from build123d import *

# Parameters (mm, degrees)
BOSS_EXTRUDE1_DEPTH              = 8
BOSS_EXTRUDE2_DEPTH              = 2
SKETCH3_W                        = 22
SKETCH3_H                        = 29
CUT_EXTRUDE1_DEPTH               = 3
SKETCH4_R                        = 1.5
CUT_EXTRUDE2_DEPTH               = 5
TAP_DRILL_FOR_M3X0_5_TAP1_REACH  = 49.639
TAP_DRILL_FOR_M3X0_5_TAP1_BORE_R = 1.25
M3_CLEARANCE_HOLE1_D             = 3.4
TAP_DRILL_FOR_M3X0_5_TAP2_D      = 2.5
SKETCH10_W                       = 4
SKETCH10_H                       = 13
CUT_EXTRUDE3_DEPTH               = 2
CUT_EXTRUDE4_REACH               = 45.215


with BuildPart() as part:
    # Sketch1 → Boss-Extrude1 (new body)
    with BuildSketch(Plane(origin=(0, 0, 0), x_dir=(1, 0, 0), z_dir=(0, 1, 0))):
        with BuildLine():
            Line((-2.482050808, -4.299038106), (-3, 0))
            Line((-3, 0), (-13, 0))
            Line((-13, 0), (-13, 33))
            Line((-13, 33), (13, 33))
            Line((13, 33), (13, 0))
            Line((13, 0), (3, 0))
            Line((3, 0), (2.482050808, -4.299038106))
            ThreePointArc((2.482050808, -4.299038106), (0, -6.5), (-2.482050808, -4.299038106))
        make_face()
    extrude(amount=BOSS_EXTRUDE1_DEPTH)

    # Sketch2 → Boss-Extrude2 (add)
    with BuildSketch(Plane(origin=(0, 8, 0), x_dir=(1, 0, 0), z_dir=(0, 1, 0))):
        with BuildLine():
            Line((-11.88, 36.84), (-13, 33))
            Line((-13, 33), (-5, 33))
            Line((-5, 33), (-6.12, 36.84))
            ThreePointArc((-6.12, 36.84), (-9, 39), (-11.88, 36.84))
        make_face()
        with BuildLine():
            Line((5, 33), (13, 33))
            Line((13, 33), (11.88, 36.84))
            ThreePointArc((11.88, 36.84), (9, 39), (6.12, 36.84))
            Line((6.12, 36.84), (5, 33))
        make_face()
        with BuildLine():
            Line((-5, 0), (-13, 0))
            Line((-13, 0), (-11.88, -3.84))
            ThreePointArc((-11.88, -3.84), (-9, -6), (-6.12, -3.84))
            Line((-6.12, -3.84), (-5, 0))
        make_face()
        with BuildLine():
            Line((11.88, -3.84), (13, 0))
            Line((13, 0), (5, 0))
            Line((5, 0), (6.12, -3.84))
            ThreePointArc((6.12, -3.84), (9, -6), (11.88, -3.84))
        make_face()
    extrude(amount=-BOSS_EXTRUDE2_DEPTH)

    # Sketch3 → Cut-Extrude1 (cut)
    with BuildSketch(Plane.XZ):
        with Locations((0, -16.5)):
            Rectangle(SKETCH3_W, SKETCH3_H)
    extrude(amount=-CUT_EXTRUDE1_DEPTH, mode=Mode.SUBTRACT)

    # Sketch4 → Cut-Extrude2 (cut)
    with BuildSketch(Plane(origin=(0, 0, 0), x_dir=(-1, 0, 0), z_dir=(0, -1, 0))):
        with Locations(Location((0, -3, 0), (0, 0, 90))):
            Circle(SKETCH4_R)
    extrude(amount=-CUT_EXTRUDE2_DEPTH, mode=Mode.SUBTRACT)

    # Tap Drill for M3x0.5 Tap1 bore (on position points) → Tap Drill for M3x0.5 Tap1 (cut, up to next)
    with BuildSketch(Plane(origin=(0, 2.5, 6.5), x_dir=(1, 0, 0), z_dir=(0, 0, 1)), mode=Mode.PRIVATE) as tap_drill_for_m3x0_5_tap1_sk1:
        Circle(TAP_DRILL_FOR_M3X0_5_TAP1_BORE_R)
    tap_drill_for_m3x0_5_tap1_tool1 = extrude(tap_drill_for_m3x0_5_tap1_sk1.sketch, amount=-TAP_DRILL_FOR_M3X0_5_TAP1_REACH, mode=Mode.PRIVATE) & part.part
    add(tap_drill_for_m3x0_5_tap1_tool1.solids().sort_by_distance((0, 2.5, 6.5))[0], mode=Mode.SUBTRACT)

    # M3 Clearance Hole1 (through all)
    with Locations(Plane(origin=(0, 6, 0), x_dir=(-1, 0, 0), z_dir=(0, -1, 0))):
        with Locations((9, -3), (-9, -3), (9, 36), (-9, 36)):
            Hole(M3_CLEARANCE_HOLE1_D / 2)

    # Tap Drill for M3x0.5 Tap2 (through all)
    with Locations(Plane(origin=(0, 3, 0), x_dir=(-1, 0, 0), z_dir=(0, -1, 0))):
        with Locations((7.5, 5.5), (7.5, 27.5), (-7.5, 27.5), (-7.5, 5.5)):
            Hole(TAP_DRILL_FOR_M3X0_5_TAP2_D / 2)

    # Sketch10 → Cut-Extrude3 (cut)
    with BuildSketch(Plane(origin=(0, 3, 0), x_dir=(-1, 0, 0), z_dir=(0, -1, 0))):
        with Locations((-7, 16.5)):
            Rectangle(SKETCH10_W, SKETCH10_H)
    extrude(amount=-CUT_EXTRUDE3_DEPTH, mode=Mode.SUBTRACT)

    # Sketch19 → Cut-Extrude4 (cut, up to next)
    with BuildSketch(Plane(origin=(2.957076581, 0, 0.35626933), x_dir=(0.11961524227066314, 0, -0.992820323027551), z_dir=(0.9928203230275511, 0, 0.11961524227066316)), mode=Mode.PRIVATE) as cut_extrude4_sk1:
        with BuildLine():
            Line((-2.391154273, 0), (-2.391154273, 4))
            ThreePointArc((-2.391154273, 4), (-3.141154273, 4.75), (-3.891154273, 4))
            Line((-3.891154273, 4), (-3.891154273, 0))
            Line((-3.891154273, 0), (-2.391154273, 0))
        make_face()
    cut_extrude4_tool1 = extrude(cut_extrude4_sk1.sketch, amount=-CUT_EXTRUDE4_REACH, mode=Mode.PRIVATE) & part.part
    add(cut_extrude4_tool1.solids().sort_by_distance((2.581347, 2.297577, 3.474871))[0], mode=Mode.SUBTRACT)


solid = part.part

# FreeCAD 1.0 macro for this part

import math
import FreeCAD as App
import Part
import Sketcher
Q = App.Units.Quantity

doc = App.newDocument("Part")
body = doc.addObject("PartDesign::Body", "Body")

# Sketch on XZ plane
sketch1 = body.newObject("Sketcher::SketchObject", "Sketch")
sketch1.AttachmentSupport = (doc.getObject("XZ_Plane"), [""])
sketch1.MapMode = "FlatFace"
sketch1.addGeometry([
    Part.LineSegment(App.Vector(-3, 0, 0), App.Vector(-2.5, 4.3, 0)),  # 0
    Part.ArcOfCircle(Part.Circle(App.Vector(0, 4, 0), App.Vector(0, 0, 1), 2.5), math.radians(7), math.radians(173)),  # 1
    Part.LineSegment(App.Vector(2.5, 4.3, 0), App.Vector(3, 0, 0)),  # 2
    Part.LineSegment(App.Vector(3, 0, 0), App.Vector(13, 0, 0)),  # 3
    Part.LineSegment(App.Vector(13, 0, 0), App.Vector(13, -33, 0)),  # 4
    Part.LineSegment(App.Vector(13, -33, 0), App.Vector(-13, -33, 0)),  # 5
    Part.LineSegment(App.Vector(-13, -33, 0), App.Vector(-13, 0, 0)),  # 6
    Part.LineSegment(App.Vector(-13, 0, 0), App.Vector(-3, 0, 0)),  # 7
], False)
sketch1.addConstraint([
    Sketcher.Constraint("Tangent", 0, 2, 1, 2),
    Sketcher.Constraint("Tangent", 1, 1, 2, 1),
    Sketcher.Constraint("Coincident", 2, 2, 3, 1),
    Sketcher.Constraint("Coincident", 3, 2, 4, 1),
    Sketcher.Constraint("Coincident", 4, 2, 5, 1),
    Sketcher.Constraint("Coincident", 5, 2, 6, 1),
    Sketcher.Constraint("Coincident", 6, 2, 7, 1),
    Sketcher.Constraint("Coincident", 7, 2, 0, 1),
    Sketcher.Constraint("Horizontal", 3),
    Sketcher.Constraint("Vertical", 4),
    Sketcher.Constraint("Horizontal", 5),
    Sketcher.Constraint("Vertical", 6),
    Sketcher.Constraint("Horizontal", 7),
    Sketcher.Constraint("Symmetric", 3, 2, 6, 2, -1, 1),
    Sketcher.Constraint("Symmetric", 0, 2, 1, 1, -2),
    Sketcher.Constraint("PointOnObject", 2, 2, -1),
    Sketcher.Constraint("Radius", 1, Q("2.5 mm")),
    Sketcher.Constraint("DistanceX", 3, 1, 3, 2, Q("10 mm")),
    Sketcher.Constraint("DistanceX", 5, 2, 5, 1, Q("26 mm")),
    Sketcher.Constraint("DistanceY", 4, 2, 4, 1, Q("33 mm")),
    Sketcher.Constraint("DistanceY", -1, 1, 1, 3, Q("4 mm")),
])
pad1 = body.newObject("PartDesign::Pad", "Pad")
pad1.Profile = sketch1
pad1.Length = 8
pad1.Reversed = True

# Sketch on XZ plane
sketch2 = body.newObject("Sketcher::SketchObject", "Sketch001")
sketch2.AttachmentSupport = (doc.getObject("XZ_Plane"), [""])
sketch2.MapMode = "FlatFace"
sketch2.AttachmentOffset = App.Placement(App.Vector(0, 0, -8), App.Rotation())
sketch2.addGeometry([
    Part.LineSegment(App.Vector(-11.9, -36.8, 0), App.Vector(-13, -33, 0)),  # 0
    Part.LineSegment(App.Vector(-13, -33, 0), App.Vector(-5, -33, 0)),  # 1
    Part.LineSegment(App.Vector(-5, -33, 0), App.Vector(-6.1, -36.8, 0)),  # 2
    Part.ArcOfCircle(Part.Circle(App.Vector(-9, -36, 0), App.Vector(0, 0, 1), 3), math.radians(-164), math.radians(-16)),  # 3
    Part.LineSegment(App.Vector(5, -33, 0), App.Vector(13, -33, 0)),  # 4
    Part.LineSegment(App.Vector(13, -33, 0), App.Vector(11.9, -36.8, 0)),  # 5
    Part.ArcOfCircle(Part.Circle(App.Vector(9, -36, 0), App.Vector(0, 0, 1), 3), math.radians(-164), math.radians(-16)),  # 6
    Part.LineSegment(App.Vector(6.1, -36.8, 0), App.Vector(5, -33, 0)),  # 7
    Part.LineSegment(App.Vector(-5, 0, 0), App.Vector(-13, 0, 0)),  # 8
    Part.LineSegment(App.Vector(-13, 0, 0), App.Vector(-11.9, 3.8, 0)),  # 9
    Part.ArcOfCircle(Part.Circle(App.Vector(-9, 3, 0), App.Vector(0, 0, 1), 3), math.radians(16), math.radians(164)),  # 10
    Part.LineSegment(App.Vector(-6.1, 3.8, 0), App.Vector(-5, 0, 0)),  # 11
    Part.LineSegment(App.Vector(11.9, 3.8, 0), App.Vector(13, 0, 0)),  # 12
    Part.LineSegment(App.Vector(13, 0, 0), App.Vector(5, 0, 0)),  # 13
    Part.LineSegment(App.Vector(5, 0, 0), App.Vector(6.1, 3.8, 0)),  # 14
    Part.ArcOfCircle(Part.Circle(App.Vector(9, 3, 0), App.Vector(0, 0, 1), 3), math.radians(16), math.radians(164)),  # 15
], False)
sketch2.addConstraint([
    Sketcher.Constraint("Coincident", 0, 2, 1, 1),
    Sketcher.Constraint("Coincident", 1, 2, 2, 1),
    Sketcher.Constraint("Tangent", 2, 2, 3, 2),
    Sketcher.Constraint("Tangent", 3, 1, 0, 1),
    Sketcher.Constraint("Coincident", 4, 2, 5, 1),
    Sketcher.Constraint("Tangent", 5, 2, 6, 2),
    Sketcher.Constraint("Tangent", 6, 1, 7, 1),
    Sketcher.Constraint("Coincident", 7, 2, 4, 1),
    Sketcher.Constraint("Coincident", 8, 2, 9, 1),
    Sketcher.Constraint("Tangent", 9, 2, 10, 2),
    Sketcher.Constraint("Tangent", 10, 1, 11, 1),
    Sketcher.Constraint("Coincident", 11, 2, 8, 1),
    Sketcher.Constraint("Coincident", 12, 2, 13, 1),
    Sketcher.Constraint("Coincident", 13, 2, 14, 1),
    Sketcher.Constraint("Tangent", 14, 2, 15, 2),
    Sketcher.Constraint("Tangent", 15, 1, 12, 1),
    Sketcher.Constraint("Horizontal", 1),
    Sketcher.Constraint("Horizontal", 4),
    Sketcher.Constraint("Horizontal", 8),
    Sketcher.Constraint("Horizontal", 13),
    Sketcher.Constraint("Equal", 3, 6),
    Sketcher.Constraint("Equal", 6, 10),
    Sketcher.Constraint("Equal", 10, 15),
    Sketcher.Constraint("Symmetric", 8, 2, 12, 2, -1, 1),
    Sketcher.Constraint("Symmetric", 3, 3, 6, 3, -2),
    Sketcher.Constraint("Symmetric", 10, 3, 15, 3, -2),
    Sketcher.Constraint("Symmetric", 0, 2, 4, 2, -2),
    Sketcher.Constraint("Symmetric", 11, 2, 13, 2, -2),
    Sketcher.Constraint("Parallel", 2, 5),
    Sketcher.Constraint("Parallel", 0, 7),
    Sketcher.Constraint("Parallel", 5, 9),
    Sketcher.Constraint("Parallel", 7, 11),
    Sketcher.Constraint("Vertical", 3, 3, 10, 3),
    Sketcher.Constraint("Vertical", 0, 2, 8, 2),
    Sketcher.Constraint("Radius", 3, Q("3 mm")),
    Sketcher.Constraint("DistanceX", 1, 1, 1, 2, Q("8 mm")),
    Sketcher.Constraint("Distance", 0, Q("4 mm")),
    Sketcher.Constraint("DistanceX", 3, 3, -1, 1, Q("9 mm")),
    Sketcher.Constraint("DistanceY", 3, 3, -1, 1, Q("36 mm")),
])
pad2 = body.newObject("PartDesign::Pad", "Pad001")
pad2.Profile = sketch2
pad2.Length = 2

# Sketch on XZ plane
sketch3 = body.newObject("Sketcher::SketchObject", "Sketch002")
sketch3.AttachmentSupport = (doc.getObject("XZ_Plane"), [""])
sketch3.MapMode = "FlatFace"
sketch3.addGeometry([
    Part.LineSegment(App.Vector(-11, -2, 0), App.Vector(-11, -31, 0)),
    Part.LineSegment(App.Vector(-11, -31, 0), App.Vector(11, -31, 0)),
    Part.LineSegment(App.Vector(11, -31, 0), App.Vector(11, -2, 0)),
    Part.LineSegment(App.Vector(11, -2, 0), App.Vector(-11, -2, 0)),
], False)
sketch3.addConstraint([
    Sketcher.Constraint("Coincident", 0, 2, 1, 1),
    Sketcher.Constraint("Coincident", 1, 2, 2, 1),
    Sketcher.Constraint("Coincident", 2, 2, 3, 1),
    Sketcher.Constraint("Coincident", 3, 2, 0, 1),
    Sketcher.Constraint("Vertical", 0),
    Sketcher.Constraint("Horizontal", 1),
    Sketcher.Constraint("Vertical", 2),
    Sketcher.Constraint("Horizontal", 3),
    Sketcher.Constraint("DistanceX", 1, 1, 1, 2, Q("22 mm")),
    Sketcher.Constraint("DistanceY", 0, 2, 0, 1, Q("29 mm")),
    Sketcher.Constraint("DistanceX", 0, 2, -1, 1, Q("11 mm")),
    Sketcher.Constraint("DistanceY", 0, 2, -1, 1, Q("31 mm")),
])
pocket1 = body.newObject("PartDesign::Pocket", "Pocket")
pocket1.Profile = sketch3
pocket1.Length = 3

# Sketch on XZ plane
sketch4 = body.newObject("Sketcher::SketchObject", "Sketch003")
sketch4.AttachmentSupport = (doc.getObject("XZ_Plane"), [""])
sketch4.MapMode = "FlatFace"
sketch4.addGeometry(Part.Circle(App.Vector(0, 3, 0), App.Vector(0, 0, 1), 1.5), False)
sketch4.addConstraint([
    Sketcher.Constraint("PointOnObject", 0, 3, -2),
    Sketcher.Constraint("Diameter", 0, Q("3 mm")),
    Sketcher.Constraint("DistanceY", -1, 1, 0, 3, Q("3 mm")),
])
pocket2 = body.newObject("PartDesign::Pocket", "Pocket001")
pocket2.Profile = sketch4
pocket2.Length = 5

# Sketch on XY plane
sketch5 = body.newObject("Sketcher::SketchObject", "Sketch004")
sketch5.AttachmentSupport = (doc.getObject("XY_Plane"), [""])
sketch5.MapMode = "FlatFace"
sketch5.AttachmentOffset = App.Placement(App.Vector(0, 0, 6.5), App.Rotation())
sketch5.addGeometry(Part.Circle(App.Vector(0, 2.5, 0), App.Vector(0, 0, 1), 1.2), False)
sketch5.addConstraint([
    Sketcher.Constraint("PointOnObject", 0, 3, -2),
    Sketcher.Constraint("Diameter", 0, Q("2.5 mm")),
    Sketcher.Constraint("DistanceY", -1, 1, 0, 3, Q("2.5 mm")),
])
pocket3 = body.newObject("PartDesign::Pocket", "Pocket002")
pocket3.Profile = sketch5
pocket3.Type = "UpToFirst"

# Sketch on XZ plane
sketch6 = body.newObject("Sketcher::SketchObject", "Sketch005")
sketch6.AttachmentSupport = (doc.getObject("XZ_Plane"), [""])
sketch6.MapMode = "FlatFace"
sketch6.AttachmentOffset = App.Placement(App.Vector(0, 0, -6), App.Rotation())
sketch6.addGeometry([
    Part.Circle(App.Vector(-9, 3, 0), App.Vector(0, 0, 1), 1.7),
    Part.Circle(App.Vector(9, 3, 0), App.Vector(0, 0, 1), 1.7),
    Part.Circle(App.Vector(-9, -36, 0), App.Vector(0, 0, 1), 1.7),
    Part.Circle(App.Vector(9, -36, 0), App.Vector(0, 0, 1), 1.7),
], False)
sketch6.addConstraint([
    Sketcher.Constraint("Equal", 0, 1),
    Sketcher.Constraint("Equal", 1, 2),
    Sketcher.Constraint("Equal", 2, 3),
    Sketcher.Constraint("Symmetric", 0, 3, 1, 3, -2),
    Sketcher.Constraint("Symmetric", 2, 3, 3, 3, -2),
    Sketcher.Constraint("Vertical", 0, 3, 2, 3),
    Sketcher.Constraint("Diameter", 0, Q("3.4 mm")),
    Sketcher.Constraint("DistanceX", 0, 3, -1, 1, Q("9 mm")),
    Sketcher.Constraint("DistanceY", -1, 1, 0, 3, Q("3 mm")),
    Sketcher.Constraint("DistanceY", 2, 3, -1, 1, Q("36 mm")),
])
doc.recompute()
hole = body.newObject("PartDesign::Hole", "Hole")
hole.Profile = sketch6
hole.ThreadType = "None"
hole.Diameter = 3.4
hole.DepthType = "ThroughAll"

# Sketch on XZ plane
sketch7 = body.newObject("Sketcher::SketchObject", "Sketch006")
sketch7.AttachmentSupport = (doc.getObject("XZ_Plane"), [""])
sketch7.MapMode = "FlatFace"
sketch7.AttachmentOffset = App.Placement(App.Vector(0, 0, -3), App.Rotation())
sketch7.addGeometry([
    Part.Circle(App.Vector(-7.5, -5.5, 0), App.Vector(0, 0, 1), 1.2),
    Part.Circle(App.Vector(-7.5, -27.5, 0), App.Vector(0, 0, 1), 1.2),
    Part.Circle(App.Vector(7.5, -27.5, 0), App.Vector(0, 0, 1), 1.2),
    Part.Circle(App.Vector(7.5, -5.5, 0), App.Vector(0, 0, 1), 1.2),
], False)
sketch7.addConstraint([
    Sketcher.Constraint("Equal", 0, 1),
    Sketcher.Constraint("Equal", 1, 2),
    Sketcher.Constraint("Equal", 2, 3),
    Sketcher.Constraint("Symmetric", 1, 3, 2, 3, -2),
    Sketcher.Constraint("Symmetric", 0, 3, 3, 3, -2),
    Sketcher.Constraint("Vertical", 0, 3, 1, 3),
    Sketcher.Constraint("Diameter", 0, Q("2.5 mm")),
    Sketcher.Constraint("DistanceY", 1, 3, 0, 3, Q("22 mm")),
    Sketcher.Constraint("DistanceX", 1, 3, 2, 3, Q("15 mm")),
    Sketcher.Constraint("DistanceY", 0, 3, -1, 1, Q("5.5 mm")),
])
doc.recompute()
hole2 = body.newObject("PartDesign::Hole", "Hole001")
hole2.Profile = sketch7
hole2.ThreadType = "None"
hole2.Diameter = 2.5
hole2.DepthType = "ThroughAll"

# Sketch on XZ plane
sketch8 = body.newObject("Sketcher::SketchObject", "Sketch007")
sketch8.AttachmentSupport = (doc.getObject("XZ_Plane"), [""])
sketch8.MapMode = "FlatFace"
sketch8.AttachmentOffset = App.Placement(App.Vector(0, 0, -3), App.Rotation())
sketch8.addGeometry([
    Part.LineSegment(App.Vector(9, -23, 0), App.Vector(9, -10, 0)),
    Part.LineSegment(App.Vector(9, -10, 0), App.Vector(5, -10, 0)),
    Part.LineSegment(App.Vector(5, -10, 0), App.Vector(5, -23, 0)),
    Part.LineSegment(App.Vector(5, -23, 0), App.Vector(9, -23, 0)),
], False)
sketch8.addConstraint([
    Sketcher.Constraint("Coincident", 0, 2, 1, 1),
    Sketcher.Constraint("Coincident", 1, 2, 2, 1),
    Sketcher.Constraint("Coincident", 2, 2, 3, 1),
    Sketcher.Constraint("Coincident", 3, 2, 0, 1),
    Sketcher.Constraint("Vertical", 0),
    Sketcher.Constraint("Horizontal", 1),
    Sketcher.Constraint("Vertical", 2),
    Sketcher.Constraint("Horizontal", 3),
    Sketcher.Constraint("DistanceX", 1, 2, 1, 1, Q("4 mm")),
    Sketcher.Constraint("DistanceY", 0, 1, 0, 2, Q("13 mm")),
    Sketcher.Constraint("DistanceX", -1, 1, 0, 2, Q("9 mm")),
    Sketcher.Constraint("DistanceY", 0, 2, -1, 1, Q("10 mm")),
])
pocket4 = body.newObject("PartDesign::Pocket", "Pocket003")
pocket4.Profile = sketch8
pocket4.Length = 2

# Sketch on an angled plane
sketch9 = body.newObject("Sketcher::SketchObject", "Sketch008")
sketch9.Placement = App.Placement(App.Vector(2.957077, 0, 0.356269), App.Rotation(App.Vector(0.119615242, 0, -0.992820323), App.Vector(0, 1, 0), App.Vector(0.992820323, 0, 0.119615242), "ZXY"))
sketch9.addGeometry([
    Part.LineSegment(App.Vector(-2.4, 0, 0), App.Vector(-2.4, 4, 0)),
    Part.ArcOfCircle(Part.Circle(App.Vector(-3.1, 4, 0), App.Vector(0, 0, 1), 0.8), math.radians(0), math.radians(180)),
    Part.LineSegment(App.Vector(-3.9, 4, 0), App.Vector(-3.9, 0, 0)),
    Part.LineSegment(App.Vector(-3.9, 0, 0), App.Vector(-2.4, 0, 0)),
], False)
sketch9.addConstraint([
    Sketcher.Constraint("Tangent", 0, 2, 1, 1),
    Sketcher.Constraint("Tangent", 1, 2, 2, 1),
    Sketcher.Constraint("Coincident", 2, 2, 3, 1),
    Sketcher.Constraint("Coincident", 3, 2, 0, 1),
    Sketcher.Constraint("Vertical", 0),
    Sketcher.Constraint("Vertical", 2),
    Sketcher.Constraint("Horizontal", 3),
    Sketcher.Constraint("PointOnObject", 2, 2, -1),
    Sketcher.Constraint("DistanceY", 0, 1, 0, 2, Q("4 mm")),
    Sketcher.Constraint("Radius", 1, Q("0.75 mm")),
    Sketcher.Constraint("DistanceX", 1, 3, -1, 1, Q("3.141154 mm")),
])
pocket5 = body.newObject("PartDesign::Pocket", "Pocket004")
pocket5.Profile = sketch9
pocket5.Type = "UpToFirst"

doc.recompute()
